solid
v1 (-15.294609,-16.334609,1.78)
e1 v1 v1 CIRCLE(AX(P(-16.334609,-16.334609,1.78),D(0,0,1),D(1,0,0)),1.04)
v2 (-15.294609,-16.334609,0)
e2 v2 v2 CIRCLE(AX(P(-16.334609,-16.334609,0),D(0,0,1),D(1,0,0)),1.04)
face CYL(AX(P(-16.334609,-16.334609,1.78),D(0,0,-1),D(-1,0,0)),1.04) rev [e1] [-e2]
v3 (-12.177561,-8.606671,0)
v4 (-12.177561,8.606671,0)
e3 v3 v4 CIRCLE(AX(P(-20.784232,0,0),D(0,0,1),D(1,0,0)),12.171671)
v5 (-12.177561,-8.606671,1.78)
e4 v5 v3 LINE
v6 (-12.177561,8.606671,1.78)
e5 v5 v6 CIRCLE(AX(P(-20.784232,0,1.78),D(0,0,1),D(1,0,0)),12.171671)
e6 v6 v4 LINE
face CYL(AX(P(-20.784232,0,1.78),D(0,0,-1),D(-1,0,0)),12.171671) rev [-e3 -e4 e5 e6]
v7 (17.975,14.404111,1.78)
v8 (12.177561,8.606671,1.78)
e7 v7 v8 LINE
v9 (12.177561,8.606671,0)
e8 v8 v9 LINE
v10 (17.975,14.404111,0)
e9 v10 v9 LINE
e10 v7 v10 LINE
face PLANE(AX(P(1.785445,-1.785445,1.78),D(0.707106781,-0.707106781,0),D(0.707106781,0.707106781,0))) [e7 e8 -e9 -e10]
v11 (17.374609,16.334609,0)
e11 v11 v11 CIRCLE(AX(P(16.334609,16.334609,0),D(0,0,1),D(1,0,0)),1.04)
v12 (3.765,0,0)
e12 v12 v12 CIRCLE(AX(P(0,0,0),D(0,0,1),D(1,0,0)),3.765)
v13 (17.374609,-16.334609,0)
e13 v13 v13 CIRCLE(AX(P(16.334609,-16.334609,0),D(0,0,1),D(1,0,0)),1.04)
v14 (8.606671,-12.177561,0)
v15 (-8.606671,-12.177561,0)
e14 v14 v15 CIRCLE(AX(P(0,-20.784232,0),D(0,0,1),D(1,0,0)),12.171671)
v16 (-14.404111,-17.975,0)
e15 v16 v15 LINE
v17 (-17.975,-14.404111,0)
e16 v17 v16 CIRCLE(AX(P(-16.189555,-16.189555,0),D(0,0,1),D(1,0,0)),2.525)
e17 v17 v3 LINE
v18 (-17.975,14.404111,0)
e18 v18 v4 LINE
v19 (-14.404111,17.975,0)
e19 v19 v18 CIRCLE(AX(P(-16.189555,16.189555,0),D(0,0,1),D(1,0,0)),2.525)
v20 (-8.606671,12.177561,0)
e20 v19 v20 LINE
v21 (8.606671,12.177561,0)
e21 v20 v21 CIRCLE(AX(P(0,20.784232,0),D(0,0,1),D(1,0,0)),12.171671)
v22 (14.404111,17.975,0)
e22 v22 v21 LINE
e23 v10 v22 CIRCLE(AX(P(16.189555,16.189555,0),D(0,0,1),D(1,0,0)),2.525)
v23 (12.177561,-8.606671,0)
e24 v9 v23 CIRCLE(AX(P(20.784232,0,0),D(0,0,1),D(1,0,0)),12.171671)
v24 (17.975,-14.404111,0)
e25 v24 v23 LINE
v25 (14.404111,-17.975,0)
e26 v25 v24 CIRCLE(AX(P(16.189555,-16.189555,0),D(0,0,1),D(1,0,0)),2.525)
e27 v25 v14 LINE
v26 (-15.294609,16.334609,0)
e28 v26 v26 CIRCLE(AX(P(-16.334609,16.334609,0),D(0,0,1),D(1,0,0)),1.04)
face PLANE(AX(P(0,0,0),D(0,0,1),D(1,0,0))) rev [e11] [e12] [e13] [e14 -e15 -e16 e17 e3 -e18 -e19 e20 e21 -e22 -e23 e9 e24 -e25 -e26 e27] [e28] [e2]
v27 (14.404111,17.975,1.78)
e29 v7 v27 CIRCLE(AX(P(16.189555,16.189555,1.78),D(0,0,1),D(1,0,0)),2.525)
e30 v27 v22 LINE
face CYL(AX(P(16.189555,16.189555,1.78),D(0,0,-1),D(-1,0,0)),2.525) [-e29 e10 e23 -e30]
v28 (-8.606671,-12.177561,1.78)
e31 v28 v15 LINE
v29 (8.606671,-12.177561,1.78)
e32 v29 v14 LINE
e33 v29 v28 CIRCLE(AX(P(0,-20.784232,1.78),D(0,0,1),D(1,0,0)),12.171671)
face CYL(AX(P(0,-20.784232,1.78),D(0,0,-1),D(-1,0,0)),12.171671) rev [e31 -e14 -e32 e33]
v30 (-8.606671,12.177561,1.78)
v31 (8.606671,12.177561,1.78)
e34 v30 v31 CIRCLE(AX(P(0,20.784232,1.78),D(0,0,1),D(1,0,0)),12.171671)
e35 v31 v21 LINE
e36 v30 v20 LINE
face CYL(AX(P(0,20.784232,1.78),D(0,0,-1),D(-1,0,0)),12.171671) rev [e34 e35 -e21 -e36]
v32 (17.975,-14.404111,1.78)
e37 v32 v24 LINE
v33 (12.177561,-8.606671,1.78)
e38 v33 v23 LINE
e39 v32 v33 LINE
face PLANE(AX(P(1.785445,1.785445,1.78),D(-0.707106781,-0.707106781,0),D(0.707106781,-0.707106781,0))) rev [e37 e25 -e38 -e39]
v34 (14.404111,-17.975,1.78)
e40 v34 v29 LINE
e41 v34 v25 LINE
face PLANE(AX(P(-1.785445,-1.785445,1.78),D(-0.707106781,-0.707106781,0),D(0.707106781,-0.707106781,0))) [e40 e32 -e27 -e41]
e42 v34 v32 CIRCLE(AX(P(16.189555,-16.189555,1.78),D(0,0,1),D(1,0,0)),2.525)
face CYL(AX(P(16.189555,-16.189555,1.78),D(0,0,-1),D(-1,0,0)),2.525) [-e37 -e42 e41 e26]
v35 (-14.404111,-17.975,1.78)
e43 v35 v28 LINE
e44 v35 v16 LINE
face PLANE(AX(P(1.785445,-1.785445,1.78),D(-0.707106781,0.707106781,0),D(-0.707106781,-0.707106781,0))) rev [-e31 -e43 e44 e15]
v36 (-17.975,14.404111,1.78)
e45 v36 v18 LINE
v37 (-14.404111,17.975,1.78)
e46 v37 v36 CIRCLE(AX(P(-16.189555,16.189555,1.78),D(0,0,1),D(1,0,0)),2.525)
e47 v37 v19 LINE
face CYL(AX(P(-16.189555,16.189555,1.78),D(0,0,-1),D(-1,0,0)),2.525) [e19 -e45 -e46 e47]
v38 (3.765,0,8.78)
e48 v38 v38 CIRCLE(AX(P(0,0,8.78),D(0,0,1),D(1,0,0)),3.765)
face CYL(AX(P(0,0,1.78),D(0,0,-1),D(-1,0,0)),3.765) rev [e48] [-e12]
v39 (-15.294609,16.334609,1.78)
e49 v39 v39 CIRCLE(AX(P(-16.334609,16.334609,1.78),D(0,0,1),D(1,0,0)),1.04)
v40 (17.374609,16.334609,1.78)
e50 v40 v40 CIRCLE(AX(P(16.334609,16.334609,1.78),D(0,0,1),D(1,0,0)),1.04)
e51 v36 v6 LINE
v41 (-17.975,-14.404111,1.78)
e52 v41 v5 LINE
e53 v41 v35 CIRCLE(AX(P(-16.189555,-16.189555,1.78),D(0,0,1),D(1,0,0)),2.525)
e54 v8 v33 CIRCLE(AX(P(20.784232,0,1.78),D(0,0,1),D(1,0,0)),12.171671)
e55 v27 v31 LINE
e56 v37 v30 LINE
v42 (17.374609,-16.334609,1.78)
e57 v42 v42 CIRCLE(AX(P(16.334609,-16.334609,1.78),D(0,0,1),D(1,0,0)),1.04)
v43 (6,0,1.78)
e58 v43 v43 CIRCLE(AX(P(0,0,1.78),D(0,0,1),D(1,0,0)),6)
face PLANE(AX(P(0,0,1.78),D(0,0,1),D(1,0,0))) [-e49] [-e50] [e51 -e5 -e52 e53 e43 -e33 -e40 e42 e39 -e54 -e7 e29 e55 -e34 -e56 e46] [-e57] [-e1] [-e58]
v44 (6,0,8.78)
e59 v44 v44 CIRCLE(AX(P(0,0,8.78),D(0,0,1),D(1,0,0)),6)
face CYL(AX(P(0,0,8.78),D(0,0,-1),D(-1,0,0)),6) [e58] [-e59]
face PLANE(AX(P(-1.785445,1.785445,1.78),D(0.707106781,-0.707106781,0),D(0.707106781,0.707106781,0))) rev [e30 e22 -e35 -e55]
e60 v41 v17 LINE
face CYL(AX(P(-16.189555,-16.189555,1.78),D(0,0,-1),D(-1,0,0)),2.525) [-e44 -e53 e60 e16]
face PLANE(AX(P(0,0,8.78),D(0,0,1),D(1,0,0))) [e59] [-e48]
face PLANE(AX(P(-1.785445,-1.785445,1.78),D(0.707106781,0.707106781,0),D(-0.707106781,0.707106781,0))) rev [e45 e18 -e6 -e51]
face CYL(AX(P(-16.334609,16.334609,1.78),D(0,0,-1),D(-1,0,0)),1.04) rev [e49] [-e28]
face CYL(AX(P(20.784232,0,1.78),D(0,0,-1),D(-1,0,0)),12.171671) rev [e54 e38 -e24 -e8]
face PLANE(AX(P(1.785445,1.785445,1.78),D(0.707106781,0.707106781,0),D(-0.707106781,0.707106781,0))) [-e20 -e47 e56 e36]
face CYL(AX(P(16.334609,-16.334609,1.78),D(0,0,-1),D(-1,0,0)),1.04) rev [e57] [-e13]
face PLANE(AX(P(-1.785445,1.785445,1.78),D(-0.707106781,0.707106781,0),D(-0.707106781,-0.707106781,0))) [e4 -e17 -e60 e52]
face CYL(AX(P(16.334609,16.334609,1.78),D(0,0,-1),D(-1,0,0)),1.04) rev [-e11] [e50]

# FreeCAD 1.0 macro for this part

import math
import FreeCAD as App
import Part
import Sketcher

doc = App.newDocument("Part")
body = doc.addObject("PartDesign::Body", "Body")

# Sketch on XY plane
sketch1 = body.newObject("Sketcher::SketchObject", "Sketch")
sketch1.AttachmentSupport = (doc.getObject("XY_Plane"), [""])
sketch1.MapMode = "FlatFace"
sketch1.addGeometry(Part.LineSegment(App.Vector(-18, 14.4, 0), App.Vector(-12.2, 8.6, 0)), False)
sketch1.addGeometry(Part.ArcOfCircle(Part.Circle(App.Vector(-20.8, 0, 0), App.Vector(0, 0, 1), 12.2), math.radians(-45), math.radians(45)), False)
sketch1.addGeometry(Part.LineSegment(App.Vector(-12.2, -8.6, 0), App.Vector(-18, -14.4, 0)), False)
sketch1.addGeometry(Part.ArcOfCircle(Part.Circle(App.Vector(-16.2, -16.2, 0), App.Vector(0, 0, 1), 2.5), math.radians(135), math.radians(225)), False)
sketch1.addGeometry(Part.ArcOfCircle(Part.Circle(App.Vector(-16.2, -16.2, 0), App.Vector(0, 0, 1), 2.5), math.radians(-135), math.radians(-45)), False)
sketch1.addGeometry(Part.LineSegment(App.Vector(-14.4, -18, 0), App.Vector(-8.6, -12.2, 0)), False)
sketch1.addGeometry(Part.ArcOfCircle(Part.Circle(App.Vector(0, -20.8, 0), App.Vector(0, 0, 1), 12.2), math.radians(45), math.radians(135)), False)
sketch1.addGeometry(Part.LineSegment(App.Vector(8.6, -12.2, 0), App.Vector(14.4, -18, 0)), False)
sketch1.addGeometry(Part.ArcOfCircle(Part.Circle(App.Vector(16.2, -16.2, 0), App.Vector(0, 0, 1), 2.5), math.radians(-135), math.radians(-45)), False)
sketch1.addGeometry(Part.ArcOfCircle(Part.Circle(App.Vector(16.2, -16.2, 0), App.Vector(0, 0, 1), 2.5), math.radians(-45), math.radians(45)), False)
sketch1.addGeometry(Part.LineSegment(App.Vector(18, -14.4, 0), App.Vector(12.2, -8.6, 0)), False)
sketch1.addGeometry(Part.ArcOfCircle(Part.Circle(App.Vector(20.8, 0, 0), App.Vector(0, 0, 1), 12.2), math.radians(135), math.radians(225)), False)
sketch1.addGeometry(Part.LineSegment(App.Vector(12.2, 8.6, 0), App.Vector(18, 14.4, 0)), False)
sketch1.addGeometry(Part.ArcOfCircle(Part.Circle(App.Vector(16.2, 16.2, 0), App.Vector(0, 0, 1), 2.5), math.radians(-45), math.radians(45)), False)
sketch1.addGeometry(Part.ArcOfCircle(Part.Circle(App.Vector(16.2, 16.2, 0), App.Vector(0, 0, 1), 2.5), math.radians(45), math.radians(135)), False)
sketch1.addGeometry(Part.LineSegment(App.Vector(14.4, 18, 0), App.Vector(8.6, 12.2, 0)), False)
sketch1.addGeometry(Part.ArcOfCircle(Part.Circle(App.Vector(0, 20.8, 0), App.Vector(0, 0, 1), 12.2), math.radians(-135), math.radians(-45)), False)
sketch1.addGeometry(Part.LineSegment(App.Vector(-8.6, 12.2, 0), App.Vector(-14.4, 18, 0)), False)
sketch1.addGeometry(Part.ArcOfCircle(Part.Circle(App.Vector(-16.2, 16.2, 0), App.Vector(0, 0, 1), 2.5), math.radians(45), math.radians(135)), False)
sketch1.addGeometry(Part.ArcOfCircle(Part.Circle(App.Vector(-16.2, 16.2, 0), App.Vector(0, 0, 1), 2.5), math.radians(135), math.radians(225)), False)
sketch1.addGeometry(Part.Circle(App.Vector(-16.3, -16.3, 0), App.Vector(0, 0, 1), 1), False)
sketch1.addGeometry(Part.Circle(App.Vector(16.3, -16.3, 0), App.Vector(0, 0, 1), 1), False)
sketch1.addGeometry(Part.Circle(App.Vector(-16.3, 16.3, 0), App.Vector(0, 0, 1), 1), False)
sketch1.addGeometry(Part.Circle(App.Vector(0, 0, 0), App.Vector(0, 0, 1), 3.8), False)
sketch1.addGeometry(Part.Circle(App.Vector(16.3, 16.3, 0), App.Vector(0, 0, 1), 1), False)
sketch1.addConstraint(Sketcher.Constraint("Tangent", 0, 2, 1, 2))
sketch1.addConstraint(Sketcher.Constraint("Tangent", 1, 1, 2, 1))
sketch1.addConstraint(Sketcher.Constraint("Tangent", 2, 2, 3, 1))
sketch1.addConstraint(Sketcher.Constraint("Tangent", 3, 2, 4, 1))
sketch1.addConstraint(Sketcher.Constraint("Tangent", 4, 2, 5, 1))
sketch1.addConstraint(Sketcher.Constraint("Tangent", 5, 2, 6, 2))
sketch1.addConstraint(Sketcher.Constraint("Tangent", 6, 1, 7, 1))
sketch1.addConstraint(Sketcher.Constraint("Tangent", 7, 2, 8, 1))
sketch1.addConstraint(Sketcher.Constraint("Tangent", 8, 2, 9, 1))
sketch1.addConstraint(Sketcher.Constraint("Tangent", 9, 2, 10, 1))
sketch1.addConstraint(Sketcher.Constraint("Tangent", 10, 2, 11, 2))
sketch1.addConstraint(Sketcher.Constraint("Tangent", 11, 1, 12, 1))
sketch1.addConstraint(Sketcher.Constraint("Tangent", 12, 2, 13, 1))
sketch1.addConstraint(Sketcher.Constraint("Tangent", 13, 2, 14, 1))
sketch1.addConstraint(Sketcher.Constraint("Tangent", 14, 2, 15, 1))
sketch1.addConstraint(Sketcher.Constraint("Tangent", 15, 2, 16, 2))
sketch1.addConstraint(Sketcher.Constraint("Tangent", 16, 1, 17, 1))
sketch1.addConstraint(Sketcher.Constraint("Tangent", 17, 2, 18, 1))
sketch1.addConstraint(Sketcher.Constraint("Tangent", 18, 2, 19, 1))
sketch1.addConstraint(Sketcher.Constraint("Tangent", 19, 2, 0, 1))
sketch1.addConstraint(Sketcher.Constraint("Coincident", 23, 3, -1, 1))
sketch1.addConstraint(Sketcher.Constraint("Equal", 3, 4))
sketch1.addConstraint(Sketcher.Constraint("Equal", 1, 6))
sketch1.addConstraint(Sketcher.Constraint("Equal", 4, 8))
sketch1.addConstraint(Sketcher.Constraint("Equal", 8, 9))
sketch1.addConstraint(Sketcher.Constraint("Equal", 6, 11))
sketch1.addConstraint(Sketcher.Constraint("Equal", 9, 13))
sketch1.addConstraint(Sketcher.Constraint("Equal", 13, 14))
sketch1.addConstraint(Sketcher.Constraint("Equal", 11, 16))
sketch1.addConstraint(Sketcher.Constraint("Equal", 14, 18))
sketch1.addConstraint(Sketcher.Constraint("Equal", 18, 19))
sketch1.addConstraint(Sketcher.Constraint("Equal", 20, 21))
sketch1.addConstraint(Sketcher.Constraint("Equal", 21, 22))
sketch1.addConstraint(Sketcher.Constraint("Equal", 22, 24))
sketch1.addConstraint(Sketcher.Constraint("Symmetric", 1, 3, 11, 3, -1, 1))
sketch1.addConstraint(Sketcher.Constraint("Symmetric", 3, 3, 13, 3, -1, 1))
sketch1.addConstraint(Sketcher.Constraint("Symmetric", 6, 3, 16, 3, -1, 1))
sketch1.addConstraint(Sketcher.Constraint("Symmetric", 8, 3, 18, 3, -1, 1))
sketch1.addConstraint(Sketcher.Constraint("Symmetric", 21, 3, 22, 3, -1, 1))
sketch1.addConstraint(Sketcher.Constraint("Symmetric", 20, 3, 24, 3, -1, 1))
sketch1.addConstraint(Sketcher.Constraint("Symmetric", 3, 3, 8, 3, -2))
sketch1.addConstraint(Sketcher.Constraint("Symmetric", 20, 3, 21, 3, -2))
sketch1.addConstraint(Sketcher.Constraint("PointOnObject", 1, 3, -1))
sketch1.addConstraint(Sketcher.Constraint("PointOnObject", 6, 3, -2))
sketch1.addConstraint(Sketcher.Constraint("Perpendicular", 0, 2))
sketch1.addConstraint(Sketcher.Constraint("Parallel", 2, 5))
sketch1.addConstraint(Sketcher.Constraint("Horizontal", 3, 2, 4, 2))
sketch1.addConstraint(Sketcher.Constraint("Horizontal", 7, 2, 8, 2))
sketch1.addConstraint(Sketcher.Constraint("Horizontal", 13, 2, 14, 2))
sketch1.addConstraint(Sketcher.Constraint("Horizontal", 17, 2, 18, 2))
sketch1.addConstraint(Sketcher.Constraint("Equal", 2, 5))
sketch1.addConstraint(Sketcher.Constraint("Diameter", 20, 2.08))
sketch1.addConstraint(Sketcher.Constraint("Diameter", 23, 7.53))
sketch1.addConstraint(Sketcher.Constraint("Radius", 3, 2.525))
sketch1.addConstraint(Sketcher.Constraint("Radius", 1, 12.171671))
sketch1.addConstraint(Sketcher.Constraint("DistanceX", 2, 2, -1, 1, 17.975))
sketch1.addConstraint(Sketcher.Constraint("DistanceY", 20, 3, 2, 2, 1.930498))
sketch1.addConstraint(Sketcher.Constraint("DistanceX", 20, 3, 4, 2, 1.930498))
pad1 = body.newObject("PartDesign::Pad", "Pad")
pad1.Profile = sketch1
pad1.Length = 1.78

# Sketch on XY plane
sketch2 = body.newObject("Sketcher::SketchObject", "Sketch001")
sketch2.AttachmentSupport = (doc.getObject("XY_Plane"), [""])
sketch2.MapMode = "FlatFace"
sketch2.AttachmentOffset = App.Placement(App.Vector(0, 0, 1.78), App.Rotation())
sketch2.addGeometry(Part.Circle(App.Vector(0, 0, 0), App.Vector(0, 0, 1), 6), False)
sketch2.addGeometry(Part.Circle(App.Vector(0, 0, 0), App.Vector(0, 0, 1), 3.8), False)
sketch2.addConstraint(Sketcher.Constraint("Coincident", 0, 3, -1, 1))
sketch2.addConstraint(Sketcher.Constraint("Coincident", 1, 3, -1, 1))
sketch2.addConstraint(Sketcher.Constraint("Diameter", 0, 12.0))
sketch2.addConstraint(Sketcher.Constraint("Diameter", 1, 7.53))
pad2 = body.newObject("PartDesign::Pad", "Pad001")
pad2.Profile = sketch2
pad2.Length = 7

doc.recompute()
